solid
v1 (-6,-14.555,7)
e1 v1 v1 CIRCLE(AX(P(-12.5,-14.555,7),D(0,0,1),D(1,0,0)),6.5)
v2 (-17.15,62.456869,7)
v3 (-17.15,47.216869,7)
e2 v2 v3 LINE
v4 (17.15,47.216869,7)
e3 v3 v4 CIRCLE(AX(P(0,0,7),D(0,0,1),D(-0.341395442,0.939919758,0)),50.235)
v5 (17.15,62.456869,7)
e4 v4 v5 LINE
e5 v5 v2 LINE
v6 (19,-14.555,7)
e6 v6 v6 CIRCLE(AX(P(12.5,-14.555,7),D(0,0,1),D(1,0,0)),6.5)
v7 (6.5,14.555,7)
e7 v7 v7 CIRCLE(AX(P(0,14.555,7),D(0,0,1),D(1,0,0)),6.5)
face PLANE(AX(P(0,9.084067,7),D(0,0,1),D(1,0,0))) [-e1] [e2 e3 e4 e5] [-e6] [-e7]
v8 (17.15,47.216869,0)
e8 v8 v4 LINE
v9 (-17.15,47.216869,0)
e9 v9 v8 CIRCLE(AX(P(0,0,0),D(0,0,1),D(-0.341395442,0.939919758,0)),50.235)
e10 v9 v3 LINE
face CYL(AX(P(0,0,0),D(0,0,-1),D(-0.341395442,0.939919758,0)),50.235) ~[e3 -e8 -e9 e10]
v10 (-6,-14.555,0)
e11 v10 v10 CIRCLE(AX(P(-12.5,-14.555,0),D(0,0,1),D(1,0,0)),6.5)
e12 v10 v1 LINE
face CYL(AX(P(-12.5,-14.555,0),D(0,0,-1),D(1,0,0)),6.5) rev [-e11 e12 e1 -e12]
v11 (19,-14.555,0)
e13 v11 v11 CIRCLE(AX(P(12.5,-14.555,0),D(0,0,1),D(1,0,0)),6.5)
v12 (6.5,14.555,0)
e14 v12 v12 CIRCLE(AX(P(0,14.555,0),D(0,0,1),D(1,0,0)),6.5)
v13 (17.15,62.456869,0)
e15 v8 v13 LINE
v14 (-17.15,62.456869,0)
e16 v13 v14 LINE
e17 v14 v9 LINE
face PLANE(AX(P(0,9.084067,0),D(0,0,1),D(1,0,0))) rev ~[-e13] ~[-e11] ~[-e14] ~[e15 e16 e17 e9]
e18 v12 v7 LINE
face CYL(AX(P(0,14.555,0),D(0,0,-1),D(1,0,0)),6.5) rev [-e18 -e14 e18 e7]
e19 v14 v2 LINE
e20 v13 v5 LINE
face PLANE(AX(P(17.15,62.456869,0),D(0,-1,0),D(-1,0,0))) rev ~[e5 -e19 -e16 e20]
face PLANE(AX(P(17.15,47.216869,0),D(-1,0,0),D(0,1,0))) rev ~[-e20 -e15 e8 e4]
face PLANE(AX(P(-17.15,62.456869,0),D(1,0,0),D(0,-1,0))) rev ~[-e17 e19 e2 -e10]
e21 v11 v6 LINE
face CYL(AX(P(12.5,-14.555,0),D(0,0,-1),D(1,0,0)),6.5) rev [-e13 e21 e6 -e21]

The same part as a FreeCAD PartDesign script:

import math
import FreeCAD as App
import Part
import Sketcher
from FreeCAD import Vector
Q = App.Units.Quantity

doc = App.newDocument("Part")
params = doc.addObject("Spreadsheet::Sheet", "Params")
for row, (alias, value) in enumerate([
    ("sketch1_diameter", "13 mm"),
    ("sketch1_width", "34.3 mm"),
    ("sketch1_height", "15.24 mm"),
    ("pad1_length", "7 mm"),
], start=1):
    params.set(f"A{row}", alias)
    params.set(f"B{row}", "=" + value)
    params.setAlias(f"B{row}", alias)

body = doc.addObject("PartDesign::Body", "Body")

# Sketch on XY plane
sketch1 = body.newObject("Sketcher::SketchObject", "Sketch")
sketch1.AttachmentSupport = (doc.getObject("XY_Plane"), [""])
sketch1.MapMode = "FlatFace"
sketch1.addGeometry([
    Part.LineSegment(Vector(-17, 62, 0), Vector(-17, 47, 0)),  # 0
    Part.ArcOfCircle(Part.Circle(Vector(0, 0, 0), Vector(0, 0, 1), 50), math.radians(110), math.radians(430)),  # 1
    Part.LineSegment(Vector(17, 47, 0), Vector(17, 62, 0)),  # 2
    Part.LineSegment(Vector(17, 62, 0), Vector(-17, 62, 0)),  # 3
    Part.Circle(Vector(-12, -15, 0), Vector(0, 0, 1), 6),  # 4
    Part.Circle(Vector(12, -15, 0), Vector(0, 0, 1), 6),  # 5
    Part.Circle(Vector(0, 15, 0), Vector(0, 0, 1), 6),  # 6
], False)
sketch1.addConstraint([
    Sketcher.Constraint("Coincident", 0, 2, 1, 1),
    Sketcher.Constraint("Coincident", 1, 2, 2, 1),
    Sketcher.Constraint("Coincident", 2, 2, 3, 1),
    Sketcher.Constraint("Coincident", 3, 2, 0, 1),
    Sketcher.Constraint("Vertical", 0),
    Sketcher.Constraint("Vertical", 2),
    Sketcher.Constraint("Horizontal", 3),
    Sketcher.Constraint("Coincident", 1, 3, -1, 1),
    Sketcher.Constraint("Equal", 4, 5),
    Sketcher.Constraint("Equal", 5, 6),
    Sketcher.Constraint("Symmetric", 4, 3, 5, 3, -2),
    Sketcher.Constraint("PointOnObject", 6, 3, -2),
    Sketcher.Constraint("Horizontal", 0, 2, 1, 2),
    Sketcher.Constraint("Diameter", 4, Q("13 mm")),
    Sketcher.Constraint("DistanceX", 3, 2, 3, 1, Q("34.3 mm")),
    Sketcher.Constraint("Radius", 1, Q("50.235 mm")),
    Sketcher.Constraint("DistanceX", 4, 3, 5, 3, Q("25 mm")),
    Sketcher.Constraint("DistanceY", 0, 2, 0, 1, Q("15.24 mm")),
    Sketcher.Constraint("DistanceY", 4, 3, 6, 3, Q("29.11 mm")),
    Sketcher.Constraint("DistanceY", 4, 3, -1, 1, Q("14.555 mm")),
])
sketch1.setExpression("Constraints[13]", "Params.sketch1_diameter")
sketch1.setExpression("Constraints[14]", "Params.sketch1_width")
sketch1.setExpression("Constraints[17]", "Params.sketch1_height")
pad1 = body.newObject("PartDesign::Pad", "Pad")
pad1.Profile = sketch1
pad1.setExpression("Length", "Params.pad1_length")

doc.recompute()
